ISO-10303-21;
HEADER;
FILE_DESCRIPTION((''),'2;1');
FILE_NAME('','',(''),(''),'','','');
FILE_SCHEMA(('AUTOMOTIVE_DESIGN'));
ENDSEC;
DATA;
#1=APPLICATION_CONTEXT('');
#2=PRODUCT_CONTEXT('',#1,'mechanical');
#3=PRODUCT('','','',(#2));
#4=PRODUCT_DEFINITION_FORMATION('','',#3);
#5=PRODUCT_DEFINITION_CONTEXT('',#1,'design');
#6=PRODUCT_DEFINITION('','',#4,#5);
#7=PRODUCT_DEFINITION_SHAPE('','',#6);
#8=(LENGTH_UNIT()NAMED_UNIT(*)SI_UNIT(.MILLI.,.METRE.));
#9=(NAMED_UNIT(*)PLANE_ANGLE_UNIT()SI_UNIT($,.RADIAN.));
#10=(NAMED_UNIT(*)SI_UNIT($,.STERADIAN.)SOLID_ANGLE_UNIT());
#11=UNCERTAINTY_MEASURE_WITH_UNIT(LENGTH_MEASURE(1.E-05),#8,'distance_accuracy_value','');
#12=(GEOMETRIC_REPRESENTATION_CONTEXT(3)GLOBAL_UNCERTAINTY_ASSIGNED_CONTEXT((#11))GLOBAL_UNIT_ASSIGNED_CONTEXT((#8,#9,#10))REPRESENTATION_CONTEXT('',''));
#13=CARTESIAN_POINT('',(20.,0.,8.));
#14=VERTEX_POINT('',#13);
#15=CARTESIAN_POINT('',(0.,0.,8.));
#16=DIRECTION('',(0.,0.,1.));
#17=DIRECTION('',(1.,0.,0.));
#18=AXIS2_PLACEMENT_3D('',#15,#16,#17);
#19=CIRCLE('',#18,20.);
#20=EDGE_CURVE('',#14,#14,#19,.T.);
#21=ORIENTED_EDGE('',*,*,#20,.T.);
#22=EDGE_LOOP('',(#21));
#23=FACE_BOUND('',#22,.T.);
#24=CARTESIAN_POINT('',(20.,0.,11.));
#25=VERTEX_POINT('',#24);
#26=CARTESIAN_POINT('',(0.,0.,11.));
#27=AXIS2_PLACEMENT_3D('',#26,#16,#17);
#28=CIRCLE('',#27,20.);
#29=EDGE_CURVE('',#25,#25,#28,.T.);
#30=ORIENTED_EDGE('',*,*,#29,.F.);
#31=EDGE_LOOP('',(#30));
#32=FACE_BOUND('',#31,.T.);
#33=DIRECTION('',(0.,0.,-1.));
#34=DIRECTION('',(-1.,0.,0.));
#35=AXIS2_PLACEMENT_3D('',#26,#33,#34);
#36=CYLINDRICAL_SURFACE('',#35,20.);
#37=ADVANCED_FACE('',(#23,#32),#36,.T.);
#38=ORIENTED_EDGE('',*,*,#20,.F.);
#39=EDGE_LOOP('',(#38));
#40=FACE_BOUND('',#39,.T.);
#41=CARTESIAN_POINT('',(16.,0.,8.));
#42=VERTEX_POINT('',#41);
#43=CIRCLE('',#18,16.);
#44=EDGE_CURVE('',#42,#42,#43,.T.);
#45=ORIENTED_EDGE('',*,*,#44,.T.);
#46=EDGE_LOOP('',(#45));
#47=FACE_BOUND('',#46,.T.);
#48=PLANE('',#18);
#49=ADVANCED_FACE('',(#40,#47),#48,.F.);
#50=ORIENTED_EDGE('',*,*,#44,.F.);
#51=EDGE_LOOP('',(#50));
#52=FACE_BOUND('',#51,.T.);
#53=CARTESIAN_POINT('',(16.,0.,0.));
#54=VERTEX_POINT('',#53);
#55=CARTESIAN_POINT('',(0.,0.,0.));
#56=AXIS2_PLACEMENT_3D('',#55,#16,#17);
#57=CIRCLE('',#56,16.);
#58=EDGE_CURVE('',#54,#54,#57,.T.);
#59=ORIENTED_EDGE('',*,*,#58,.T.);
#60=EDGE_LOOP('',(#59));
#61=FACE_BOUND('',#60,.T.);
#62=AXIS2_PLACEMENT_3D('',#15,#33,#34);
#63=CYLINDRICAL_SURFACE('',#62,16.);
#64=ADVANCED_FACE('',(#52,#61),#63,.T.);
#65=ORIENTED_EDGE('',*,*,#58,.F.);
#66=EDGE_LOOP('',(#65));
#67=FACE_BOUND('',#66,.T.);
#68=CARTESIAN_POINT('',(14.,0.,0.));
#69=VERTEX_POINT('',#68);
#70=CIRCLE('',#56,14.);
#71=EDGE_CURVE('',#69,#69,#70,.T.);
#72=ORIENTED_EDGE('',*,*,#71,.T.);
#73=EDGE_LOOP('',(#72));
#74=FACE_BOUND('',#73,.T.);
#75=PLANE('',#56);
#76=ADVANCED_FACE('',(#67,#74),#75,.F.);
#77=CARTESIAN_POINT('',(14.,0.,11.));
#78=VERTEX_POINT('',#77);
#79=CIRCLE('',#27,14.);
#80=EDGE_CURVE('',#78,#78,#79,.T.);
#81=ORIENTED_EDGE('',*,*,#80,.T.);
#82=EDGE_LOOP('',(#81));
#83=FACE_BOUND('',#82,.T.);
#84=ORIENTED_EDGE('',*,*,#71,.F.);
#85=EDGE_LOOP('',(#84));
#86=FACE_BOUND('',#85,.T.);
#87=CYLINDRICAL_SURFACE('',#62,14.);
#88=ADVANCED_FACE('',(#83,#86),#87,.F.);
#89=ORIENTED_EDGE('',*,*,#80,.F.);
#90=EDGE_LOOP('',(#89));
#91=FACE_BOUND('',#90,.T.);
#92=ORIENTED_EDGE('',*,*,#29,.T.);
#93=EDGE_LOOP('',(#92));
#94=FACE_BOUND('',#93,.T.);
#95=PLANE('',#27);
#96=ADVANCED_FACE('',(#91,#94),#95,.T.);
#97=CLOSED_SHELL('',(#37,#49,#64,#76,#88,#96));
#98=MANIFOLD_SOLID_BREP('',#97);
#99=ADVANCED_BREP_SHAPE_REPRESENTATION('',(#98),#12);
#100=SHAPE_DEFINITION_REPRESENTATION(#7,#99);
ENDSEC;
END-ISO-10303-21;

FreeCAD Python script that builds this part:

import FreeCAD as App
import Part
import Sketcher

V = App.Vector

doc = App.newDocument("Part")
body = doc.addObject("PartDesign::Body", "Body")

sketch1 = body.newObject("Sketcher::SketchObject", "Sketch")
sketch1.AttachmentSupport = (doc.getObject("XY_Plane"), [""])
sketch1.MapMode = "FlatFace"
sketch1.addGeometry([
    Part.Circle(V(0, 0, 0), V(0, 0, 1), 16),
    Part.Circle(V(0, 0, 0), V(0, 0, 1), 14),
], False)
sketch1.addConstraint([
    Sketcher.Constraint("Coincident", 0, 3, -1, 1),
    Sketcher.Constraint("Coincident", 1, 3, -1, 1),
    Sketcher.Constraint("Diameter", 0, 32.0),
    Sketcher.Constraint("Diameter", 1, 28.0),
])
pad1 = body.newObject("PartDesign::Pad", "Pad")
pad1.Profile = sketch1
pad1.Length = 8

sketch2 = body.newObject("Sketcher::SketchObject", "Sketch001")
sketch2.AttachmentSupport = (doc.getObject("XY_Plane"), [""])
sketch2.MapMode = "FlatFace"
sketch2.AttachmentOffset = App.Placement(V(0, 0, 8), App.Rotation())
sketch2.addGeometry([
    Part.Circle(V(0, 0, 0), V(0, 0, 1), 20),
    Part.Circle(V(0, 0, 0), V(0, 0, 1), 14),
], False)
sketch2.addConstraint([
    Sketcher.Constraint("Coincident", 0, 3, -1, 1),
    Sketcher.Constraint("Coincident", 1, 3, -1, 1),
    Sketcher.Constraint("Diameter", 0, 40.0),
    Sketcher.Constraint("Diameter", 1, 28.0),
])
pad2 = body.newObject("PartDesign::Pad", "Pad001")
pad2.Profile = sketch2
pad2.Length = 3

doc.recompute()
